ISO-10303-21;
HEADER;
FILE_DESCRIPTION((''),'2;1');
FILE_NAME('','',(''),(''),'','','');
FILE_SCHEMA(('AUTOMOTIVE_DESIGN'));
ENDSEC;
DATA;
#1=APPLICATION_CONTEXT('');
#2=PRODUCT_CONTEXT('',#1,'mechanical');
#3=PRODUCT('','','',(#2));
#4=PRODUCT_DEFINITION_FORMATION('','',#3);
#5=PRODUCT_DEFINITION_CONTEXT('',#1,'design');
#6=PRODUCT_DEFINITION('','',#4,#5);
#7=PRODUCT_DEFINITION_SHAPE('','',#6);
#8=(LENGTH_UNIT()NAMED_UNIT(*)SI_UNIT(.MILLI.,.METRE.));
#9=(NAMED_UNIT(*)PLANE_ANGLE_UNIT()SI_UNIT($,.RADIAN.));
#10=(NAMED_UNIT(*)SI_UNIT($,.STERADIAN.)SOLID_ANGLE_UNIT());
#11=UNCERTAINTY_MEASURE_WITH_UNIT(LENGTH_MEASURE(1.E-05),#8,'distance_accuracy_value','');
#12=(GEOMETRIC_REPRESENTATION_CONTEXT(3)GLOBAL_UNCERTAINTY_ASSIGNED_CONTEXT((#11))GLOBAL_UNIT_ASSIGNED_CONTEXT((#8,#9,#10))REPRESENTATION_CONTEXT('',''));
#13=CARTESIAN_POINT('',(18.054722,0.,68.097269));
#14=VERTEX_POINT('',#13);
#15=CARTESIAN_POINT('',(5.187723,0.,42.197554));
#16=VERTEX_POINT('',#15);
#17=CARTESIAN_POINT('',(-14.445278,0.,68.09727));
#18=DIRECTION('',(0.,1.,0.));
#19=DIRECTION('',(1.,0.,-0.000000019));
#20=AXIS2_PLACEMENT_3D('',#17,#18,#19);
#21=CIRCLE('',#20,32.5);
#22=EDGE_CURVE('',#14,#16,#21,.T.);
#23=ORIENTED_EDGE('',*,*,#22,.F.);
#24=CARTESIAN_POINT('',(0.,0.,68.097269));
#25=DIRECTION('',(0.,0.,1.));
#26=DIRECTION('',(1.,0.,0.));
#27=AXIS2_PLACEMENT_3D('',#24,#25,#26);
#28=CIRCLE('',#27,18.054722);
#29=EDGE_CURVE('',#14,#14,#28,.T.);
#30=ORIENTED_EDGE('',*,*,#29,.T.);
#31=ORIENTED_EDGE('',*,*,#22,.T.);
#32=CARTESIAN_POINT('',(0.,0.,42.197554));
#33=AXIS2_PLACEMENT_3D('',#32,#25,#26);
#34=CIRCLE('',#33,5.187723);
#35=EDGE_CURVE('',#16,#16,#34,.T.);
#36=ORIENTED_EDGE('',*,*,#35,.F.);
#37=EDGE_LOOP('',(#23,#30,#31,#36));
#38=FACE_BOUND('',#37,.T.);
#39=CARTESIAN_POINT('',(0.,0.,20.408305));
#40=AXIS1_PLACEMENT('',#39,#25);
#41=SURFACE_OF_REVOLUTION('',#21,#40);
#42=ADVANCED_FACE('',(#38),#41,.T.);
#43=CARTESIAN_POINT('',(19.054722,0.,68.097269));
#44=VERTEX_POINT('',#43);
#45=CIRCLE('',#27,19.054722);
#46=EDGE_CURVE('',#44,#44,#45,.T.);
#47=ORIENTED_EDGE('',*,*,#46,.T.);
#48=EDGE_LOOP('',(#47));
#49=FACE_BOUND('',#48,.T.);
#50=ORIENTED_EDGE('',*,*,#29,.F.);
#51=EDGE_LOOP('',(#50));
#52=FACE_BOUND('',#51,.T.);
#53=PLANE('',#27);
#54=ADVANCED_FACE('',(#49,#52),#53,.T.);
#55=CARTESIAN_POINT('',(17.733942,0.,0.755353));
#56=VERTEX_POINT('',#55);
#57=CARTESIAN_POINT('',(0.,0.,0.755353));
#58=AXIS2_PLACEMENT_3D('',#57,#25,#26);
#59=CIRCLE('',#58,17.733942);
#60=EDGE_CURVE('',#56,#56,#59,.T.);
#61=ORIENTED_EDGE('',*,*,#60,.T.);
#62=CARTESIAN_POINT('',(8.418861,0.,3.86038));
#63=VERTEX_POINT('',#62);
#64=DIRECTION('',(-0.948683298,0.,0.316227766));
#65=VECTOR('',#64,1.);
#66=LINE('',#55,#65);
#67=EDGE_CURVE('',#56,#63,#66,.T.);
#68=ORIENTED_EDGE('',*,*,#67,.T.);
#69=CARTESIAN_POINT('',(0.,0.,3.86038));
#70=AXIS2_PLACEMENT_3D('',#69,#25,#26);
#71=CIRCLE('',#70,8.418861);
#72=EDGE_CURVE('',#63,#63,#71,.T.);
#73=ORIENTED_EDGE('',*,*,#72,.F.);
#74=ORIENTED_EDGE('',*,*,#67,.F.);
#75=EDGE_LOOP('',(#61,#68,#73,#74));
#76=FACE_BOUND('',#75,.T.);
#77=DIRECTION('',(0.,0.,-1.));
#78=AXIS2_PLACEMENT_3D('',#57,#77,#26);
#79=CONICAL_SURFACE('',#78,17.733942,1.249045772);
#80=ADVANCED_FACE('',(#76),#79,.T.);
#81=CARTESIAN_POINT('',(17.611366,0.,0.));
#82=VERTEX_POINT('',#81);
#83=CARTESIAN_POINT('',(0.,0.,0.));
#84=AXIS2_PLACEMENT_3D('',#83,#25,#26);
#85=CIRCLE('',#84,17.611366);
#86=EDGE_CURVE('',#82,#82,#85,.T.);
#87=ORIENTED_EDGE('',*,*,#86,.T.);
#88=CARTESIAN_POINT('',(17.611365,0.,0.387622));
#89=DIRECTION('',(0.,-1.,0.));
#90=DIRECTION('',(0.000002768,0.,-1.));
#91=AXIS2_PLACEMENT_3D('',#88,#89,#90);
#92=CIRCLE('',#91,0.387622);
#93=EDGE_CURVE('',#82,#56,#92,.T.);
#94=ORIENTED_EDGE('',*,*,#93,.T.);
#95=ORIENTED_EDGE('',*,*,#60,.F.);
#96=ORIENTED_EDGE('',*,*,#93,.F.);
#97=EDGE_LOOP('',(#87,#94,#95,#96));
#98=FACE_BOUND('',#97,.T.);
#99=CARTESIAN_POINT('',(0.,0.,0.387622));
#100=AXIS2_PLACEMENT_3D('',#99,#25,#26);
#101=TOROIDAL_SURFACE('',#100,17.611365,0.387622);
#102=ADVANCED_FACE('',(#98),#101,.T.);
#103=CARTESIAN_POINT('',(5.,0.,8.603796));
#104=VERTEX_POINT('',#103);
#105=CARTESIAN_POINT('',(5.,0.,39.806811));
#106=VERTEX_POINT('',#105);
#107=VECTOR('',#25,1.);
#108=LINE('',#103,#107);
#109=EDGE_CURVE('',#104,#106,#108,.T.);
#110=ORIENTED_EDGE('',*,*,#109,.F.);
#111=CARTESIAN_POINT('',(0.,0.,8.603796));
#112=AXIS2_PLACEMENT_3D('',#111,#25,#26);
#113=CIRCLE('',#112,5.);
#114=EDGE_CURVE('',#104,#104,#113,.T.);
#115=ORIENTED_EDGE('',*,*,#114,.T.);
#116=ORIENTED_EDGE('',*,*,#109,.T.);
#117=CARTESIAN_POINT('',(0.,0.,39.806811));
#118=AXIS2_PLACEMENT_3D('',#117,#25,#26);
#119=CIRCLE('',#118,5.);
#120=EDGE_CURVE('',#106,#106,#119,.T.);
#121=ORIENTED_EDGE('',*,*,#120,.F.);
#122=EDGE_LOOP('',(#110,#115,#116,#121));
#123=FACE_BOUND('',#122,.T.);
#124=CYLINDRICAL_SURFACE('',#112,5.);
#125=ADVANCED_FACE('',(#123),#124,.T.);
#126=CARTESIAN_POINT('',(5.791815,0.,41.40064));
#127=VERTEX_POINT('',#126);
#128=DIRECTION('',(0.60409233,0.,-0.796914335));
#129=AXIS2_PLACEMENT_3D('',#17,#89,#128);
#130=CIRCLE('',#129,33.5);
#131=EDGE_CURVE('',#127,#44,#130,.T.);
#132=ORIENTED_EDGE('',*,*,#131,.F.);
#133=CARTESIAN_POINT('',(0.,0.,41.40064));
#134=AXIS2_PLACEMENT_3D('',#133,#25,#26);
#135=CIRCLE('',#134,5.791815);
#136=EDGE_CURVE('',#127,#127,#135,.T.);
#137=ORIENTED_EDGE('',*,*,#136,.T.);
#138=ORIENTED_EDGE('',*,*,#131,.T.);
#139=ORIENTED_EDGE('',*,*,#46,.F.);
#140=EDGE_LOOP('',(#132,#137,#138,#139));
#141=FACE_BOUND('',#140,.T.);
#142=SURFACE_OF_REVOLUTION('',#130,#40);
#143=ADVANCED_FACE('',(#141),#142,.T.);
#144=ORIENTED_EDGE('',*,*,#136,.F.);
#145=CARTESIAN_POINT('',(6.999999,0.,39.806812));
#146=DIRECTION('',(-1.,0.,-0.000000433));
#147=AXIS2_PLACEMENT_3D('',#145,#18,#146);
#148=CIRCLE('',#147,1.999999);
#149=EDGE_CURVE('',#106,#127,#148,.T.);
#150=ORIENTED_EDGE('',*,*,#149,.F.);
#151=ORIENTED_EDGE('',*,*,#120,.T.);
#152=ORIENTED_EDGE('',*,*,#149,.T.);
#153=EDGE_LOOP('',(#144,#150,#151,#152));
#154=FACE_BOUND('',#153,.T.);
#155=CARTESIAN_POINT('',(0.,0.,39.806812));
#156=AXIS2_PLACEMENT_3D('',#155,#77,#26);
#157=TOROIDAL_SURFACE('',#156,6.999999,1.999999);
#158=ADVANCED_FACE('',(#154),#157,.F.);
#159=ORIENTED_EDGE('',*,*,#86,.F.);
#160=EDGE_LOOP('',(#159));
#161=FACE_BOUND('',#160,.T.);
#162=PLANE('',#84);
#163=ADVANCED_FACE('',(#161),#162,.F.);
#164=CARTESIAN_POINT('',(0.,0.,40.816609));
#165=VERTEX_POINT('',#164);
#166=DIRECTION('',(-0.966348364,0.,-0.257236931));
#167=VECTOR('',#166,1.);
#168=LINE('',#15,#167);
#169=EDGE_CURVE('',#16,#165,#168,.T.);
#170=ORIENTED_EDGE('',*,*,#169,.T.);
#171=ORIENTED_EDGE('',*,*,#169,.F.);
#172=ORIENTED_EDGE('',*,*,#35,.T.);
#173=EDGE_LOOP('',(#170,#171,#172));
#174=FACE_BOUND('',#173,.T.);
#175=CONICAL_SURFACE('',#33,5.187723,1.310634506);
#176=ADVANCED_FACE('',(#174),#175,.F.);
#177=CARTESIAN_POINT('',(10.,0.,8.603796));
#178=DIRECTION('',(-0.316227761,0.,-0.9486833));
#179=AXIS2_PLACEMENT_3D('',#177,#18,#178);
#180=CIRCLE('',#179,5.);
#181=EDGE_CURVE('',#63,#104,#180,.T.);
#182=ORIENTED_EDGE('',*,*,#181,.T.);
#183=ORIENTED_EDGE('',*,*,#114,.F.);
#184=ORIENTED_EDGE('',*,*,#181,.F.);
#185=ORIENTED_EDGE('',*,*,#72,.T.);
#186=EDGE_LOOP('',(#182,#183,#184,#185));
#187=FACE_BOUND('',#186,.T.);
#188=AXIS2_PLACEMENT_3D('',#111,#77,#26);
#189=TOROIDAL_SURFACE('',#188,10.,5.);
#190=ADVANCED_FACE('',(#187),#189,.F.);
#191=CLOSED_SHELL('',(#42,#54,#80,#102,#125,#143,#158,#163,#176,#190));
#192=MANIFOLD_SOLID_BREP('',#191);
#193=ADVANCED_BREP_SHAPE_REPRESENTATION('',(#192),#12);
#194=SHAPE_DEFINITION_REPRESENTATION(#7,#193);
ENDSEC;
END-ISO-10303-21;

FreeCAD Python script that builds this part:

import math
import FreeCAD as App
import Part
import Sketcher
from FreeCAD import Vector
Q = App.Units.Quantity

doc = App.newDocument("Part")
body = doc.addObject("PartDesign::Body", "Body")

# Sketch on XZ plane
sketch1 = doc.addObject("Sketcher::SketchObject", "Sketch")
body.addObject(sketch1)
sketch1.AttachmentSupport = (doc.XZ_Plane, [""])
sketch1.MapMode = "FlatFace"
sketch1.addGeometry([
    Part.LineSegment(Vector(0, 40.82, 0), Vector(0, 0, 0)),  # 0
    Part.LineSegment(Vector(0, 0, 0), Vector(17.61, 0, 0)),  # 1
    Part.ArcOfCircle(Part.Circle(Vector(17.61, 0.39, 0), Vector(0, 0, 1), 0.39), math.radians(-90), math.radians(72)),  # 2
    Part.LineSegment(Vector(17.73, 0.76, 0), Vector(8.42, 3.86, 0)),  # 3
    Part.ArcOfCircle(Part.Circle(Vector(10, 8.6, 0), Vector(0, 0, 1), 5), math.radians(-180), math.radians(-108)),  # 4
    Part.LineSegment(Vector(5, 8.6, 0), Vector(5, 39.81, 0)),  # 5
    Part.ArcOfCircle(Part.Circle(Vector(7, 39.81, 0), Vector(0, 0, 1), 2), math.radians(127), math.radians(180)),  # 6
    Part.ArcOfCircle(Part.Circle(Vector(-14.45, 68.1, 0), Vector(0, 0, 1), 33.5), math.radians(-53), math.radians(0)),  # 7
    Part.LineSegment(Vector(19.05, 68.1, 0), Vector(18.05, 68.1, 0)),  # 8
    Part.ArcOfCircle(Part.Circle(Vector(-14.45, 68.1, 0), Vector(0, 0, 1), 32.5), math.radians(-53), math.radians(0)),  # 9
    Part.LineSegment(Vector(5.19, 42.2, 0), Vector(0, 40.82, 0)),  # 10
], False)
sketch1.addConstraint([
    Sketcher.Constraint("Coincident", 0, 2, 1, 1),
    Sketcher.Constraint("Coincident", 1, 2, 2, 1),
    Sketcher.Constraint("Tangent", 2, 2, 3, 1),
    Sketcher.Constraint("Tangent", 3, 2, 4, 2),
    Sketcher.Constraint("Tangent", 4, 1, 5, 1),
    Sketcher.Constraint("Tangent", 5, 2, 6, 2),
    Sketcher.Constraint("Tangent", 6, 1, 7, 1),
    Sketcher.Constraint("Coincident", 7, 2, 8, 1),
    Sketcher.Constraint("Coincident", 8, 2, 9, 2),
    Sketcher.Constraint("Coincident", 9, 1, 10, 1),
    Sketcher.Constraint("Coincident", 10, 2, 0, 1),
    Sketcher.Constraint("Vertical", 0),
    Sketcher.Constraint("Horizontal", 1),
    Sketcher.Constraint("Vertical", 5),
    Sketcher.Constraint("Horizontal", 8),
    Sketcher.Constraint("Coincident", 0, 2, -1, 1),
    Sketcher.Constraint("Coincident", 9, 3, 7, 3),
    Sketcher.Constraint("Horizontal", 9, 3, 7, 2),
    Sketcher.Constraint("Vertical", 2, 3, 1, 2),
    Sketcher.Constraint("Radius", 4, Q("5 mm")),
    Sketcher.Constraint("Radius", 6, Q("1.999999 mm")),
    Sketcher.Constraint("Radius", 7, Q("33.5 mm")),
    Sketcher.Constraint("Radius", 9, Q("32.5 mm")),
    Sketcher.Constraint("DistanceX", -1, 1, 4, 3, Q("10 mm")),
    Sketcher.Constraint("Radius", 2, Q("0.387622 mm")),
    Sketcher.Constraint("DistanceX", 9, 1, 8, 2, Q("12.866999 mm")),
    Sketcher.Constraint("DistanceY", 0, 2, 0, 1, Q("40.816609 mm")),
    Sketcher.Constraint("DistanceX", 1, 1, 1, 2, Q("17.611366 mm")),
    Sketcher.Constraint("DistanceY", 5, 1, 5, 2, Q("31.203015 mm")),
    Sketcher.Constraint("DistanceY", -1, 1, 6, 3, Q("39.806812 mm")),
    Sketcher.Constraint("DistanceX", 7, 3, -1, 1, Q("14.445278 mm")),
])
revolution = doc.addObject("PartDesign::Revolution", "Revolution")
body.addObject(revolution)
revolution.Profile = sketch1
revolution.ReferenceAxis = (sketch1, ["V_Axis"])
revolution.Angle = 360

doc.recompute()
